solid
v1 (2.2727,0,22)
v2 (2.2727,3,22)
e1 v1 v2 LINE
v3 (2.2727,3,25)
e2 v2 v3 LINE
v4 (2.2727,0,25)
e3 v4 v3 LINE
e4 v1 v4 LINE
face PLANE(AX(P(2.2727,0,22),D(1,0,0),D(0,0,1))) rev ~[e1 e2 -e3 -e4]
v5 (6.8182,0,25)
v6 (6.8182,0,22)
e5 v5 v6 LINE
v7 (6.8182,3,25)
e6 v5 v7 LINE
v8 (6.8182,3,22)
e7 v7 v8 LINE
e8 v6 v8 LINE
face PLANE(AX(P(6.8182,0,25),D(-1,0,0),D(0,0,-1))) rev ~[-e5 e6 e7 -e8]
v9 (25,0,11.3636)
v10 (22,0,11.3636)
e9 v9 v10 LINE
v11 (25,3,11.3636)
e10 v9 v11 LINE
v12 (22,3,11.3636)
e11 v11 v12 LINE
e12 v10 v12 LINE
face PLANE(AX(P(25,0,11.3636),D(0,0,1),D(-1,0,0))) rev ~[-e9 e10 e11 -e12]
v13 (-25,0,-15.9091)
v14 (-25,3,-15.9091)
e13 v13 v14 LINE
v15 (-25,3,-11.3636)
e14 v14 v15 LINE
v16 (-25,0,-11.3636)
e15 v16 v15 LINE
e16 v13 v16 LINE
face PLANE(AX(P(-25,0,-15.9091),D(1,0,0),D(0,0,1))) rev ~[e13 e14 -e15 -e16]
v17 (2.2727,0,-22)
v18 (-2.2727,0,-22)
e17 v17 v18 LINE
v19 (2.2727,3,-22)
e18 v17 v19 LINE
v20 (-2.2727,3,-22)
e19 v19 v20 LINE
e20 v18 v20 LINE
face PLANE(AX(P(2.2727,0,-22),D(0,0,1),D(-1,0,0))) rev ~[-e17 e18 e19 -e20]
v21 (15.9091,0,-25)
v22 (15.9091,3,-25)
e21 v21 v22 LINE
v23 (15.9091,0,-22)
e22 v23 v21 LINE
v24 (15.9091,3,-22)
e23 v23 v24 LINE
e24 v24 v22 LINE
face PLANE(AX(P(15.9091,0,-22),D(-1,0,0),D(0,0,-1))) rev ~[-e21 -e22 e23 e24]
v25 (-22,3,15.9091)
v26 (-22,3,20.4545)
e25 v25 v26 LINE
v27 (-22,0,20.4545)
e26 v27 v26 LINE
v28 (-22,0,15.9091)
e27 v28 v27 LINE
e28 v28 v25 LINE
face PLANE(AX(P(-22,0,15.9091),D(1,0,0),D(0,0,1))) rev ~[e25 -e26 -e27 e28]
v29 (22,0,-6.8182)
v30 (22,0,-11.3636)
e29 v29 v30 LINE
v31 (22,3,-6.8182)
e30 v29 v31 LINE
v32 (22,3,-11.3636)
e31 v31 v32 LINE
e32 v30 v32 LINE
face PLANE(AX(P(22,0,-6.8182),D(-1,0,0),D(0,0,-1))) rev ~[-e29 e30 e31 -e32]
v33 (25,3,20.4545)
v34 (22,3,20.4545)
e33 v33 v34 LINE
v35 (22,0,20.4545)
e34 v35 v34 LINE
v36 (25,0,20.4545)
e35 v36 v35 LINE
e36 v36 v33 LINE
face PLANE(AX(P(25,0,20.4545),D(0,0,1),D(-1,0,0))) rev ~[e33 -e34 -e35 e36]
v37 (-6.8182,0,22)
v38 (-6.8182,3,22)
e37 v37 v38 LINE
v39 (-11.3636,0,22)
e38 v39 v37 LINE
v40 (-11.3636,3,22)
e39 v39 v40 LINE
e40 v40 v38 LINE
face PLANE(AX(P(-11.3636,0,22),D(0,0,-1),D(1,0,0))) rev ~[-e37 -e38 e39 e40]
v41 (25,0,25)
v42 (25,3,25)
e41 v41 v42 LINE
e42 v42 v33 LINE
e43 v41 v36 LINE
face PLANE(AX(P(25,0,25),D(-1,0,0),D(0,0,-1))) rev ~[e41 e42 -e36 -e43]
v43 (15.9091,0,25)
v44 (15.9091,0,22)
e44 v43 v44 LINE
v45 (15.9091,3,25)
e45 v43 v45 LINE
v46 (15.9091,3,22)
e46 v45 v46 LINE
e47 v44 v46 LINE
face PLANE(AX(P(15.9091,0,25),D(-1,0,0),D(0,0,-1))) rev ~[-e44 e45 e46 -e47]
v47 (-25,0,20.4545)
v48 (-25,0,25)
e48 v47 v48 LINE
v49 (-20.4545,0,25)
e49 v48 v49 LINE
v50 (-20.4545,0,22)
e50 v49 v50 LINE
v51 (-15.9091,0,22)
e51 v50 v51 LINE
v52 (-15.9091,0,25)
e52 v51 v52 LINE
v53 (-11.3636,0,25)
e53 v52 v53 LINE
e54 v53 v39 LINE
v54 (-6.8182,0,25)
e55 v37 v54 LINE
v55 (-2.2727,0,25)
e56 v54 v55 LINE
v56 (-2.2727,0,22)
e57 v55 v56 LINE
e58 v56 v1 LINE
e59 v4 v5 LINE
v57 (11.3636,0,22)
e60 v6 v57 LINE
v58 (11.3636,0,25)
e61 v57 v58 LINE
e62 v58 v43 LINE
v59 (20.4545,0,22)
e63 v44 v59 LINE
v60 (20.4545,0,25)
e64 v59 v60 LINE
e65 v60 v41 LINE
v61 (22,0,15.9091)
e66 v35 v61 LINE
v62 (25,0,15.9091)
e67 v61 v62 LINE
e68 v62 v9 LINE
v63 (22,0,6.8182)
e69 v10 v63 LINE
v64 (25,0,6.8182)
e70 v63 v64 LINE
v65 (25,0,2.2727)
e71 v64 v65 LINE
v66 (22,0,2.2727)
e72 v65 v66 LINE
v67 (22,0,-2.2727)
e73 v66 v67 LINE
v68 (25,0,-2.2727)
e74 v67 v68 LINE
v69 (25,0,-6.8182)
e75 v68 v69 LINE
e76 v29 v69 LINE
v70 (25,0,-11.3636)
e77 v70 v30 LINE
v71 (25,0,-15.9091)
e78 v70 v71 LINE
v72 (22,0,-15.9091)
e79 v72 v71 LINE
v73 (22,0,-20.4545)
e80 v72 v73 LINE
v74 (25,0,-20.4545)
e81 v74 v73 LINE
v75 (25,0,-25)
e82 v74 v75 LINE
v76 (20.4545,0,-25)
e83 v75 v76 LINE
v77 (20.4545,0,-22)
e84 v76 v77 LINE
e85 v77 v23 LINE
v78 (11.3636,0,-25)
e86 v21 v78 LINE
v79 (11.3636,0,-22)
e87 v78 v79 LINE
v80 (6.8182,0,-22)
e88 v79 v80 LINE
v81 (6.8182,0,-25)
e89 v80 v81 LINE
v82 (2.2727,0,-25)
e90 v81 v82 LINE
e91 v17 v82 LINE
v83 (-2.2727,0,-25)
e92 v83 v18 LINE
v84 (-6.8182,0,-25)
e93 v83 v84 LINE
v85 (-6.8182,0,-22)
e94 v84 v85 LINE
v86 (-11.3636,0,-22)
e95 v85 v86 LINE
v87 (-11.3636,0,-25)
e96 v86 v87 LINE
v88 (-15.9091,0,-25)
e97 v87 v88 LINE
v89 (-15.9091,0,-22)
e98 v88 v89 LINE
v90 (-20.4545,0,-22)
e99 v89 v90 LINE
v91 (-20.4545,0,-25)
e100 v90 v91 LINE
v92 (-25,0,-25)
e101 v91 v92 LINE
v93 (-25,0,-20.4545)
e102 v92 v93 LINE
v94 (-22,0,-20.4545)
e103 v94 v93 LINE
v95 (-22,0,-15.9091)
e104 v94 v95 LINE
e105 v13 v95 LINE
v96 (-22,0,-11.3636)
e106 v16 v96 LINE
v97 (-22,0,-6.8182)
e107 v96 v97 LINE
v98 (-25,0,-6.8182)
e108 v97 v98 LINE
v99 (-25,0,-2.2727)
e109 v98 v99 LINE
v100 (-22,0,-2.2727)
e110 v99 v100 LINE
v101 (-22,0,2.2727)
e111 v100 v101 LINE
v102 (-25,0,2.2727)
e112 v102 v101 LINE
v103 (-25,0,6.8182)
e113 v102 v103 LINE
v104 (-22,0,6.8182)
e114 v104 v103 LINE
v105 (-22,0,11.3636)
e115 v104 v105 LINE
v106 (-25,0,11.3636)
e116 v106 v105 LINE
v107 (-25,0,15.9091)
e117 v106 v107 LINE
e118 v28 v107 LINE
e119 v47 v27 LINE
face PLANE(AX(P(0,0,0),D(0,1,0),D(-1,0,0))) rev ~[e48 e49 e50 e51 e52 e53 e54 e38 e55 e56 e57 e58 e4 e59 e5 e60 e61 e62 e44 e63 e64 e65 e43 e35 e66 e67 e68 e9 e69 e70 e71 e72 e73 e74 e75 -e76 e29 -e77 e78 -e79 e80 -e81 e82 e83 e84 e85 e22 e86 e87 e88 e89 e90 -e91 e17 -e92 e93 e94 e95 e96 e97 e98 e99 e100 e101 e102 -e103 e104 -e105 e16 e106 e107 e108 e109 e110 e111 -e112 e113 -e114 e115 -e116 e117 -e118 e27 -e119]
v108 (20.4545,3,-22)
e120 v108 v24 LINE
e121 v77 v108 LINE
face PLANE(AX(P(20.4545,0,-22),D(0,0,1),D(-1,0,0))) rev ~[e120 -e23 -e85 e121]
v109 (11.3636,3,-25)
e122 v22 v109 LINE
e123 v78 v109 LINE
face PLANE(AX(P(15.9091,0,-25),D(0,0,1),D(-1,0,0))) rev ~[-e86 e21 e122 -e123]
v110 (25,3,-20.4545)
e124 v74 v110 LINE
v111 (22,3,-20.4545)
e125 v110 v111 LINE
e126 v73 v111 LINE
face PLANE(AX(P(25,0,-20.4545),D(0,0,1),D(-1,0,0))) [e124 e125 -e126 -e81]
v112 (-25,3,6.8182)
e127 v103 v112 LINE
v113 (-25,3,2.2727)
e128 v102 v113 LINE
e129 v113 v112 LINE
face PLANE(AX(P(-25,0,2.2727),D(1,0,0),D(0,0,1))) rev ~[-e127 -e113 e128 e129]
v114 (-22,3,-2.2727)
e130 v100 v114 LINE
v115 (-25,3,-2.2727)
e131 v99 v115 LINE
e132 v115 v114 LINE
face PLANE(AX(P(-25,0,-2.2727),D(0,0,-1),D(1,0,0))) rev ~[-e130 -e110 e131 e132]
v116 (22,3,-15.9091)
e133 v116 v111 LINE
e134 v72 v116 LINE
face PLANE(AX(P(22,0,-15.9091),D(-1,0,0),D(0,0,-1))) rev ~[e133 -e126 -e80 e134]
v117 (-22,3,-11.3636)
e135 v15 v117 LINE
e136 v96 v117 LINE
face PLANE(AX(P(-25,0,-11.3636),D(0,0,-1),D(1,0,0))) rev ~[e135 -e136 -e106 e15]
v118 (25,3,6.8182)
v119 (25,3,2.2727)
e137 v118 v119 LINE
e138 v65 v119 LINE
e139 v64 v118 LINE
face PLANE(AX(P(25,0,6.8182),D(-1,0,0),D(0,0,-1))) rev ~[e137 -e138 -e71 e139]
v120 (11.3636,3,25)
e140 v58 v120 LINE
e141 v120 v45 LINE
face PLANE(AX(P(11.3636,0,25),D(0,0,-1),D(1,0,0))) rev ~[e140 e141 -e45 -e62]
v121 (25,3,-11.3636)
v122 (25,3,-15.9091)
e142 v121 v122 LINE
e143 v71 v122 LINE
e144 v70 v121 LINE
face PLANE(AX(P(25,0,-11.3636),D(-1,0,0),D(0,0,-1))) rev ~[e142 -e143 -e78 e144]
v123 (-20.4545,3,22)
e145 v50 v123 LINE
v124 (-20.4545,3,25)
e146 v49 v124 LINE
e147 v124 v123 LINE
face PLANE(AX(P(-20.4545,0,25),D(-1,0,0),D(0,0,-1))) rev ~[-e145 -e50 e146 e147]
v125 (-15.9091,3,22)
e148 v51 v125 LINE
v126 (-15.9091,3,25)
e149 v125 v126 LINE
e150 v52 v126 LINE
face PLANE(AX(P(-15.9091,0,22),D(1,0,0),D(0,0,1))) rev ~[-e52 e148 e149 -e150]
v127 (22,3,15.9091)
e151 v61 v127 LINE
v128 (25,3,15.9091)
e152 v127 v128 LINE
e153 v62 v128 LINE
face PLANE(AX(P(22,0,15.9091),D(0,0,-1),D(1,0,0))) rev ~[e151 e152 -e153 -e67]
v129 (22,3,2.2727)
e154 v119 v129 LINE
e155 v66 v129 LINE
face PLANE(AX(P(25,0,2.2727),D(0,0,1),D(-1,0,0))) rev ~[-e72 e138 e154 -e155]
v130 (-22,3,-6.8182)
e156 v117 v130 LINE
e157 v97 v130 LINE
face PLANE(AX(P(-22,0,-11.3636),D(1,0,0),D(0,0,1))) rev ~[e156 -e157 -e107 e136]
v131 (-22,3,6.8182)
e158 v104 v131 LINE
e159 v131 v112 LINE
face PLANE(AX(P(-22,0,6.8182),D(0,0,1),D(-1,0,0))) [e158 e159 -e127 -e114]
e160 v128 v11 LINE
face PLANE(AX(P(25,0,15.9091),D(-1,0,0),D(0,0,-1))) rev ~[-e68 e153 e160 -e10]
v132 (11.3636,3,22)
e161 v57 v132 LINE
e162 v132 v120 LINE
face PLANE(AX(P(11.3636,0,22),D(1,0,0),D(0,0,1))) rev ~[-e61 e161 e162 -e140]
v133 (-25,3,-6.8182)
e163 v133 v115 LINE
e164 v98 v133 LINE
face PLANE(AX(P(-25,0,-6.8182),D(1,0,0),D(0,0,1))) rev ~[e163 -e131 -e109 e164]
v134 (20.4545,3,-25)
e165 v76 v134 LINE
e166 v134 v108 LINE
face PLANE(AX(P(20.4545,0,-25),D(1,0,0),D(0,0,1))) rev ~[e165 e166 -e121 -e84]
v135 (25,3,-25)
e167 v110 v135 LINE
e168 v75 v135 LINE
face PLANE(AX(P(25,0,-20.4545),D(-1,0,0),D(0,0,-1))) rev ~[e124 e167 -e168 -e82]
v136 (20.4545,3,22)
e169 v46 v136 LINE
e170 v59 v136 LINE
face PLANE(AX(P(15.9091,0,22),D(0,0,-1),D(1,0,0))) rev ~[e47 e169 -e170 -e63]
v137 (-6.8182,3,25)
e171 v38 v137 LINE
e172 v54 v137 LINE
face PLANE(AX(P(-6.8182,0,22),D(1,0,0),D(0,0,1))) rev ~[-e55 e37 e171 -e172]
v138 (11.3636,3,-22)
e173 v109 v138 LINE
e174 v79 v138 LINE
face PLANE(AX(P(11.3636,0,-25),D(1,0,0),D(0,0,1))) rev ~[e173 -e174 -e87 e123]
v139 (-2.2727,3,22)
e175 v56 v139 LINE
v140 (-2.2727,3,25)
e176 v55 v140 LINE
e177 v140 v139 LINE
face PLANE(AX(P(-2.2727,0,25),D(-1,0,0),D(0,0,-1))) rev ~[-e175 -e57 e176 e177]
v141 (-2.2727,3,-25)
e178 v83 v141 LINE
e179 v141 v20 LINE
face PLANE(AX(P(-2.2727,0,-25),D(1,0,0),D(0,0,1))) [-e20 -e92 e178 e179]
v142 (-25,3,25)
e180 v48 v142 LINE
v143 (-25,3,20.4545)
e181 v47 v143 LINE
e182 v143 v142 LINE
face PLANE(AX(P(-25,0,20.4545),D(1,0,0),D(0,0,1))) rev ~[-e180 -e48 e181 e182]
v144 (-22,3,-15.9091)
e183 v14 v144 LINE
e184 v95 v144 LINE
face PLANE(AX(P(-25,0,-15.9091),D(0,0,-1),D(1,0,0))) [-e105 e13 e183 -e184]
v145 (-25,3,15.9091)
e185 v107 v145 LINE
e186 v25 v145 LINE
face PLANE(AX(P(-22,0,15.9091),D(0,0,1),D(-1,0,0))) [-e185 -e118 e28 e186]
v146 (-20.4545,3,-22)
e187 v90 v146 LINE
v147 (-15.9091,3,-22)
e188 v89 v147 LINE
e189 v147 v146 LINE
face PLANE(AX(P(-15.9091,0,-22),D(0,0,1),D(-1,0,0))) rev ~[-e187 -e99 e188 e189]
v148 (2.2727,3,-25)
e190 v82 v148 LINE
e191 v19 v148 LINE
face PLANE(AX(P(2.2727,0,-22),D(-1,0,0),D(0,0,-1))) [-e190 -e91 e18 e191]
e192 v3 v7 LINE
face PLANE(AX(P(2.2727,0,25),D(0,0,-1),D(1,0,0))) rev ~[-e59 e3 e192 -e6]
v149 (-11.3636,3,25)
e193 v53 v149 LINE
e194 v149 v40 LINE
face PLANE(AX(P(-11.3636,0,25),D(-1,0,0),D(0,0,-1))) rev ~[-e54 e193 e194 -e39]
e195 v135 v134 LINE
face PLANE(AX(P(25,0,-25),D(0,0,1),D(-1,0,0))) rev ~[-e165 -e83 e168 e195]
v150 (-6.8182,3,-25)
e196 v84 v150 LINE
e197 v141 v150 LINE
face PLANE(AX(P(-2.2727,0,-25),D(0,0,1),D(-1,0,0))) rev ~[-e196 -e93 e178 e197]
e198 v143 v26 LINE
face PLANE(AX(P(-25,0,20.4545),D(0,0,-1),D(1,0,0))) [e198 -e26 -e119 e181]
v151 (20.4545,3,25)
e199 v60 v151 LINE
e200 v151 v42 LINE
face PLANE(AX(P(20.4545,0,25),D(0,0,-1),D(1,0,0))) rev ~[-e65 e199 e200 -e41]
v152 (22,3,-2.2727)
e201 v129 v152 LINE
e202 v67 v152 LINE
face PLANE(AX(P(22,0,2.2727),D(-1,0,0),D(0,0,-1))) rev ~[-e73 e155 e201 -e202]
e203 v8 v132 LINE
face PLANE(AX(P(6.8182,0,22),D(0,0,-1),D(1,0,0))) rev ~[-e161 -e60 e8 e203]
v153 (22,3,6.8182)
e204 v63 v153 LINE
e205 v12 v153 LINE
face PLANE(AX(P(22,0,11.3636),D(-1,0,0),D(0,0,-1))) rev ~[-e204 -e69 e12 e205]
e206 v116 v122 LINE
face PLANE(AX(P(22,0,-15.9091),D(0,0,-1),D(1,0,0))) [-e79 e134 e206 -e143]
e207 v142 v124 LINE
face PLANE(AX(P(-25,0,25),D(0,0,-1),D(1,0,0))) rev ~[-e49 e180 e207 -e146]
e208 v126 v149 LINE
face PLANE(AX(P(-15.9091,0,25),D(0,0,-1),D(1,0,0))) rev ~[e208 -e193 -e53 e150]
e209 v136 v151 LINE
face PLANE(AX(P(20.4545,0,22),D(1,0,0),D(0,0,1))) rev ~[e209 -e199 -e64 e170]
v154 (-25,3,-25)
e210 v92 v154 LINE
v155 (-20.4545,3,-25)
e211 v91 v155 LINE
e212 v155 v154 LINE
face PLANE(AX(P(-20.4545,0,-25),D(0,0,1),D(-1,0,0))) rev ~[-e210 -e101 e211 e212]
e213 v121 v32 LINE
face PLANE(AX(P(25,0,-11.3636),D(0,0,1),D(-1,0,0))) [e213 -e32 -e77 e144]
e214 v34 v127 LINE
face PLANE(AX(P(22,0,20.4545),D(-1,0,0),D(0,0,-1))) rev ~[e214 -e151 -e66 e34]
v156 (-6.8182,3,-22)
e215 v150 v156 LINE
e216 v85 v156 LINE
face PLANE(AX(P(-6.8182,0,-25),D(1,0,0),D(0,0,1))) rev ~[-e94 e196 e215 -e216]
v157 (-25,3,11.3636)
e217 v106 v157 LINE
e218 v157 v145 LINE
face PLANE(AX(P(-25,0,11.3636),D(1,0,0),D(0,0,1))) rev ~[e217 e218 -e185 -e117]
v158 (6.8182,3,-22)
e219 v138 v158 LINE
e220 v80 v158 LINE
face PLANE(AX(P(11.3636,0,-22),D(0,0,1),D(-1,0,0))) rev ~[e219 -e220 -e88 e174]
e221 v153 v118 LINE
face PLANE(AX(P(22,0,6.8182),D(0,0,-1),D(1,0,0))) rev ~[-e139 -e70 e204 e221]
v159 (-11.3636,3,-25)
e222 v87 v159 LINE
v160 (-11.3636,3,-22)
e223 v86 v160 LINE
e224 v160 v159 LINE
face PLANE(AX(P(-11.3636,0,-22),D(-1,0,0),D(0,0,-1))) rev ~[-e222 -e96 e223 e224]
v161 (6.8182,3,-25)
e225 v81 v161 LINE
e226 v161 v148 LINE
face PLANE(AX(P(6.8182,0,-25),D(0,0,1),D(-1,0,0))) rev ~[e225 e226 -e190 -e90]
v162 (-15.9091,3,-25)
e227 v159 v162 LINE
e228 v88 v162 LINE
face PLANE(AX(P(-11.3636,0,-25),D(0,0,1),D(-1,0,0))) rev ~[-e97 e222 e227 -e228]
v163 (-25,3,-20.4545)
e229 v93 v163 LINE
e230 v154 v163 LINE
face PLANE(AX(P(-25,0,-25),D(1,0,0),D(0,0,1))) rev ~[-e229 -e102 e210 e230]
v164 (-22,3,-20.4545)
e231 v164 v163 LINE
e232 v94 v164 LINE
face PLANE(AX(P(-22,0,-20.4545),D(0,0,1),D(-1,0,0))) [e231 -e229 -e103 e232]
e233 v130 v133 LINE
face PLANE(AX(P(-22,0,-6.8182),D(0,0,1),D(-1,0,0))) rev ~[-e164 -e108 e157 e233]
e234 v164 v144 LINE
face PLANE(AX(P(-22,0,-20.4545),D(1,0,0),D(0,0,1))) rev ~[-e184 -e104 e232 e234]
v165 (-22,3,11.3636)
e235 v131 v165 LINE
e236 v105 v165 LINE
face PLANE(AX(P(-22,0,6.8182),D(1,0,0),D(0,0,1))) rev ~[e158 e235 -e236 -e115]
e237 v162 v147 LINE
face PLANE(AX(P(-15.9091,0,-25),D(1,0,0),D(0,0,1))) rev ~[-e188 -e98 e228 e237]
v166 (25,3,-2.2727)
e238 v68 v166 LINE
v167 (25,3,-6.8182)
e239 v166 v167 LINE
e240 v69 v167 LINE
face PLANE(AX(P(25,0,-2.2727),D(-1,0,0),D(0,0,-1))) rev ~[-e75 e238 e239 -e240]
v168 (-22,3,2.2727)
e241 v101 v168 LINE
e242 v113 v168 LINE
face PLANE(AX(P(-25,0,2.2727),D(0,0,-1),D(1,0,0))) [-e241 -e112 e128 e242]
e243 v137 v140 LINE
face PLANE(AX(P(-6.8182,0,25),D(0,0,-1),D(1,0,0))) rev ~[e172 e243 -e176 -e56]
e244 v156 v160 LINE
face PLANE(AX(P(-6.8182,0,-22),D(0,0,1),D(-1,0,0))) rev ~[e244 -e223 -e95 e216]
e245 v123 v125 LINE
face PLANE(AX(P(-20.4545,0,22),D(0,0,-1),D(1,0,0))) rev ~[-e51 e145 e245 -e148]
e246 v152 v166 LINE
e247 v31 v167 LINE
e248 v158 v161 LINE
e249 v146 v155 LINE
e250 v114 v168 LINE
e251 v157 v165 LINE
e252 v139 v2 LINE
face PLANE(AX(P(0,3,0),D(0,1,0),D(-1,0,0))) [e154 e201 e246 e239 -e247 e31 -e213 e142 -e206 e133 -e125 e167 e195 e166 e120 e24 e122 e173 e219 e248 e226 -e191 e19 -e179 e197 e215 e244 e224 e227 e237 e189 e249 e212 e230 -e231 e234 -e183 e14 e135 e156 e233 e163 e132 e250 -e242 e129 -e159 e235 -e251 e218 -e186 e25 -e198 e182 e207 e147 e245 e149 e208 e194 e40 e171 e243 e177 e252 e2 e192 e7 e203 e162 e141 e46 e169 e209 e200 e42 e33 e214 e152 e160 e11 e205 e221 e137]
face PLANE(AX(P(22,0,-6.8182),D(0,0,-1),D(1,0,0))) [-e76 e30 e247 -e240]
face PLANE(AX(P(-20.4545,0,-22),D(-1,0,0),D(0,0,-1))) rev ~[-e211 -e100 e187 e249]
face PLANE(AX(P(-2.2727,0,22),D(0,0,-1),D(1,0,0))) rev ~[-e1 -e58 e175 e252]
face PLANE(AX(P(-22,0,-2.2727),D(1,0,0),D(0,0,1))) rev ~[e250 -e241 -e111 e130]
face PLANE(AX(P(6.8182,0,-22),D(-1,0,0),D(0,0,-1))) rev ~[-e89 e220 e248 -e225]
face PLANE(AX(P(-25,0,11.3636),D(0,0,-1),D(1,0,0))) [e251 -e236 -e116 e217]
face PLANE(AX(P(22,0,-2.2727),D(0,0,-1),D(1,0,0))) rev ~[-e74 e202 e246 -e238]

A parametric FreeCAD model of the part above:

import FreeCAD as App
import Part
import Sketcher
from FreeCAD import Vector

doc = App.newDocument("Part")
params = doc.addObject("Spreadsheet::Sheet", "Params")
for row, (alias, value) in enumerate([
    ("sketch1_width", "3 mm"),
    ("pad1_length", "3 mm"),
], start=1):
    params.set(f"A{row}", alias)
    params.set(f"B{row}", "=" + value)
    params.setAlias(f"B{row}", alias)

body = doc.addObject("PartDesign::Body", "Body")

# Sketch on XZ plane
sketch1 = body.newObject("Sketcher::SketchObject", "Sketch")
sketch1.AttachmentSupport = (doc.getObject("XZ_Plane"), [""])
sketch1.MapMode = "FlatFace"
sketch1.addGeometry(Part.LineSegment(Vector(-25, 25, 0), Vector(-20.5, 25, 0)), False)
sketch1.addGeometry(Part.LineSegment(Vector(-20.5, 25, 0), Vector(-20.5, 22, 0)), False)
sketch1.addGeometry(Part.LineSegment(Vector(-20.5, 22, 0), Vector(-15.9, 22, 0)), False)
sketch1.addGeometry(Part.LineSegment(Vector(-15.9, 22, 0), Vector(-15.9, 25, 0)), False)
sketch1.addGeometry(Part.LineSegment(Vector(-15.9, 25, 0), Vector(-11.4, 25, 0)), False)
sketch1.addGeometry(Part.LineSegment(Vector(-11.4, 25, 0), Vector(-11.4, 22, 0)), False)
sketch1.addGeometry(Part.LineSegment(Vector(-11.4, 22, 0), Vector(-6.8, 22, 0)), False)
sketch1.addGeometry(Part.LineSegment(Vector(-6.8, 22, 0), Vector(-6.8, 25, 0)), False)
sketch1.addGeometry(Part.LineSegment(Vector(-6.8, 25, 0), Vector(-2.3, 25, 0)), False)
sketch1.addGeometry(Part.LineSegment(Vector(-2.3, 25, 0), Vector(-2.3, 22, 0)), False)
sketch1.addGeometry(Part.LineSegment(Vector(-2.3, 22, 0), Vector(2.3, 22, 0)), False)
sketch1.addGeometry(Part.LineSegment(Vector(2.3, 22, 0), Vector(2.3, 25, 0)), False)
sketch1.addGeometry(Part.LineSegment(Vector(2.3, 25, 0), Vector(6.8, 25, 0)), False)
sketch1.addGeometry(Part.LineSegment(Vector(6.8, 25, 0), Vector(6.8, 22, 0)), False)
sketch1.addGeometry(Part.LineSegment(Vector(6.8, 22, 0), Vector(11.4, 22, 0)), False)
sketch1.addGeometry(Part.LineSegment(Vector(11.4, 22, 0), Vector(11.4, 25, 0)), False)
sketch1.addGeometry(Part.LineSegment(Vector(11.4, 25, 0), Vector(15.9, 25, 0)), False)
sketch1.addGeometry(Part.LineSegment(Vector(15.9, 25, 0), Vector(15.9, 22, 0)), False)
sketch1.addGeometry(Part.LineSegment(Vector(15.9, 22, 0), Vector(20.5, 22, 0)), False)
sketch1.addGeometry(Part.LineSegment(Vector(20.5, 22, 0), Vector(20.5, 25, 0)), False)
sketch1.addGeometry(Part.LineSegment(Vector(20.5, 25, 0), Vector(25, 25, 0)), False)
sketch1.addGeometry(Part.LineSegment(Vector(25, 25, 0), Vector(25, 20.5, 0)), False)
sketch1.addGeometry(Part.LineSegment(Vector(25, 20.5, 0), Vector(22, 20.5, 0)), False)
sketch1.addGeometry(Part.LineSegment(Vector(22, 20.5, 0), Vector(22, 15.9, 0)), False)
sketch1.addGeometry(Part.LineSegment(Vector(22, 15.9, 0), Vector(25, 15.9, 0)), False)
sketch1.addGeometry(Part.LineSegment(Vector(25, 15.9, 0), Vector(25, 11.4, 0)), False)
sketch1.addGeometry(Part.LineSegment(Vector(25, 11.4, 0), Vector(22, 11.4, 0)), False)
sketch1.addGeometry(Part.LineSegment(Vector(22, 11.4, 0), Vector(22, 6.8, 0)), False)
sketch1.addGeometry(Part.LineSegment(Vector(22, 6.8, 0), Vector(25, 6.8, 0)), False)
sketch1.addGeometry(Part.LineSegment(Vector(25, 6.8, 0), Vector(25, 2.3, 0)), False)
sketch1.addGeometry(Part.LineSegment(Vector(25, 2.3, 0), Vector(22, 2.3, 0)), False)
sketch1.addGeometry(Part.LineSegment(Vector(22, 2.3, 0), Vector(22, -2.3, 0)), False)
sketch1.addGeometry(Part.LineSegment(Vector(22, -2.3, 0), Vector(25, -2.3, 0)), False)
sketch1.addGeometry(Part.LineSegment(Vector(25, -2.3, 0), Vector(25, -6.8, 0)), False)
sketch1.addGeometry(Part.LineSegment(Vector(25, -6.8, 0), Vector(22, -6.8, 0)), False)
sketch1.addGeometry(Part.LineSegment(Vector(22, -6.8, 0), Vector(22, -11.4, 0)), False)
sketch1.addGeometry(Part.LineSegment(Vector(22, -11.4, 0), Vector(25, -11.4, 0)), False)
sketch1.addGeometry(Part.LineSegment(Vector(25, -11.4, 0), Vector(25, -15.9, 0)), False)
sketch1.addGeometry(Part.LineSegment(Vector(25, -15.9, 0), Vector(22, -15.9, 0)), False)
sketch1.addGeometry(Part.LineSegment(Vector(22, -15.9, 0), Vector(22, -20.5, 0)), False)
sketch1.addGeometry(Part.LineSegment(Vector(22, -20.5, 0), Vector(25, -20.5, 0)), False)
sketch1.addGeometry(Part.LineSegment(Vector(25, -20.5, 0), Vector(25, -25, 0)), False)
sketch1.addGeometry(Part.LineSegment(Vector(25, -25, 0), Vector(20.5, -25, 0)), False)
sketch1.addGeometry(Part.LineSegment(Vector(20.5, -25, 0), Vector(20.5, -22, 0)), False)
sketch1.addGeometry(Part.LineSegment(Vector(20.5, -22, 0), Vector(15.9, -22, 0)), False)
sketch1.addGeometry(Part.LineSegment(Vector(15.9, -22, 0), Vector(15.9, -25, 0)), False)
sketch1.addGeometry(Part.LineSegment(Vector(15.9, -25, 0), Vector(11.4, -25, 0)), False)
sketch1.addGeometry(Part.LineSegment(Vector(11.4, -25, 0), Vector(11.4, -22, 0)), False)
sketch1.addGeometry(Part.LineSegment(Vector(11.4, -22, 0), Vector(6.8, -22, 0)), False)
sketch1.addGeometry(Part.LineSegment(Vector(6.8, -22, 0), Vector(6.8, -25, 0)), False)
sketch1.addGeometry(Part.LineSegment(Vector(6.8, -25, 0), Vector(2.3, -25, 0)), False)
sketch1.addGeometry(Part.LineSegment(Vector(2.3, -25, 0), Vector(2.3, -22, 0)), False)
sketch1.addGeometry(Part.LineSegment(Vector(2.3, -22, 0), Vector(-2.3, -22, 0)), False)
sketch1.addGeometry(Part.LineSegment(Vector(-2.3, -22, 0), Vector(-2.3, -25, 0)), False)
sketch1.addGeometry(Part.LineSegment(Vector(-2.3, -25, 0), Vector(-6.8, -25, 0)), False)
sketch1.addGeometry(Part.LineSegment(Vector(-6.8, -25, 0), Vector(-6.8, -22, 0)), False)
sketch1.addGeometry(Part.LineSegment(Vector(-6.8, -22, 0), Vector(-11.4, -22, 0)), False)
sketch1.addGeometry(Part.LineSegment(Vector(-11.4, -22, 0), Vector(-11.4, -25, 0)), False)
sketch1.addGeometry(Part.LineSegment(Vector(-11.4, -25, 0), Vector(-15.9, -25, 0)), False)
sketch1.addGeometry(Part.LineSegment(Vector(-15.9, -25, 0), Vector(-15.9, -22, 0)), False)
sketch1.addGeometry(Part.LineSegment(Vector(-15.9, -22, 0), Vector(-20.5, -22, 0)), False)
sketch1.addGeometry(Part.LineSegment(Vector(-20.5, -22, 0), Vector(-20.5, -25, 0)), False)
sketch1.addGeometry(Part.LineSegment(Vector(-20.5, -25, 0), Vector(-25, -25, 0)), False)
sketch1.addGeometry(Part.LineSegment(Vector(-25, -25, 0), Vector(-25, -20.5, 0)), False)
sketch1.addGeometry(Part.LineSegment(Vector(-25, -20.5, 0), Vector(-22, -20.5, 0)), False)
sketch1.addGeometry(Part.LineSegment(Vector(-22, -20.5, 0), Vector(-22, -15.9, 0)), False)
sketch1.addGeometry(Part.LineSegment(Vector(-22, -15.9, 0), Vector(-25, -15.9, 0)), False)
sketch1.addGeometry(Part.LineSegment(Vector(-25, -15.9, 0), Vector(-25, -11.4, 0)), False)
sketch1.addGeometry(Part.LineSegment(Vector(-25, -11.4, 0), Vector(-22, -11.4, 0)), False)
sketch1.addGeometry(Part.LineSegment(Vector(-22, -11.4, 0), Vector(-22, -6.8, 0)), False)
sketch1.addGeometry(Part.LineSegment(Vector(-22, -6.8, 0), Vector(-25, -6.8, 0)), False)
sketch1.addGeometry(Part.LineSegment(Vector(-25, -6.8, 0), Vector(-25, -2.3, 0)), False)
sketch1.addGeometry(Part.LineSegment(Vector(-25, -2.3, 0), Vector(-22, -2.3, 0)), False)
sketch1.addGeometry(Part.LineSegment(Vector(-22, -2.3, 0), Vector(-22, 2.3, 0)), False)
sketch1.addGeometry(Part.LineSegment(Vector(-22, 2.3, 0), Vector(-25, 2.3, 0)), False)
sketch1.addGeometry(Part.LineSegment(Vector(-25, 2.3, 0), Vector(-25, 6.8, 0)), False)
sketch1.addGeometry(Part.LineSegment(Vector(-25, 6.8, 0), Vector(-22, 6.8, 0)), False)
sketch1.addGeometry(Part.LineSegment(Vector(-22, 6.8, 0), Vector(-22, 11.4, 0)), False)
sketch1.addGeometry(Part.LineSegment(Vector(-22, 11.4, 0), Vector(-25, 11.4, 0)), False)
sketch1.addGeometry(Part.LineSegment(Vector(-25, 11.4, 0), Vector(-25, 15.9, 0)), False)
sketch1.addGeometry(Part.LineSegment(Vector(-25, 15.9, 0), Vector(-22, 15.9, 0)), False)
sketch1.addGeometry(Part.LineSegment(Vector(-22, 15.9, 0), Vector(-22, 20.5, 0)), False)
sketch1.addGeometry(Part.LineSegment(Vector(-22, 20.5, 0), Vector(-25, 20.5, 0)), False)
sketch1.addGeometry(Part.LineSegment(Vector(-25, 20.5, 0), Vector(-25, 25, 0)), False)
sketch1.addConstraint(Sketcher.Constraint("Coincident", 0, 2, 1, 1))
sketch1.addConstraint(Sketcher.Constraint("Coincident", 1, 2, 2, 1))
sketch1.addConstraint(Sketcher.Constraint("Coincident", 2, 2, 3, 1))
sketch1.addConstraint(Sketcher.Constraint("Coincident", 3, 2, 4, 1))
sketch1.addConstraint(Sketcher.Constraint("Coincident", 4, 2, 5, 1))
sketch1.addConstraint(Sketcher.Constraint("Coincident", 5, 2, 6, 1))
sketch1.addConstraint(Sketcher.Constraint("Coincident", 6, 2, 7, 1))
sketch1.addConstraint(Sketcher.Constraint("Coincident", 7, 2, 8, 1))
sketch1.addConstraint(Sketcher.Constraint("Coincident", 8, 2, 9, 1))
sketch1.addConstraint(Sketcher.Constraint("Coincident", 9, 2, 10, 1))
sketch1.addConstraint(Sketcher.Constraint("Coincident", 10, 2, 11, 1))
sketch1.addConstraint(Sketcher.Constraint("Coincident", 11, 2, 12, 1))
sketch1.addConstraint(Sketcher.Constraint("Coincident", 12, 2, 13, 1))
sketch1.addConstraint(Sketcher.Constraint("Coincident", 13, 2, 14, 1))
sketch1.addConstraint(Sketcher.Constraint("Coincident", 14, 2, 15, 1))
sketch1.addConstraint(Sketcher.Constraint("Coincident", 15, 2, 16, 1))
sketch1.addConstraint(Sketcher.Constraint("Coincident", 16, 2, 17, 1))
sketch1.addConstraint(Sketcher.Constraint("Coincident", 17, 2, 18, 1))
sketch1.addConstraint(Sketcher.Constraint("Coincident", 18, 2, 19, 1))
sketch1.addConstraint(Sketcher.Constraint("Coincident", 19, 2, 20, 1))
sketch1.addConstraint(Sketcher.Constraint("Coincident", 20, 2, 21, 1))
sketch1.addConstraint(Sketcher.Constraint("Coincident", 21, 2, 22, 1))
sketch1.addConstraint(Sketcher.Constraint("Coincident", 22, 2, 23, 1))
sketch1.addConstraint(Sketcher.Constraint("Coincident", 23, 2, 24, 1))
sketch1.addConstraint(Sketcher.Constraint("Coincident", 24, 2, 25, 1))
sketch1.addConstraint(Sketcher.Constraint("Coincident", 25, 2, 26, 1))
sketch1.addConstraint(Sketcher.Constraint("Coincident", 26, 2, 27, 1))
sketch1.addConstraint(Sketcher.Constraint("Coincident", 27, 2, 28, 1))
sketch1.addConstraint(Sketcher.Constraint("Coincident", 28, 2, 29, 1))
sketch1.addConstraint(Sketcher.Constraint("Coincident", 29, 2, 30, 1))
sketch1.addConstraint(Sketcher.Constraint("Coincident", 30, 2, 31, 1))
sketch1.addConstraint(Sketcher.Constraint("Coincident", 31, 2, 32, 1))
sketch1.addConstraint(Sketcher.Constraint("Coincident", 32, 2, 33, 1))
sketch1.addConstraint(Sketcher.Constraint("Coincident", 33, 2, 34, 1))
sketch1.addConstraint(Sketcher.Constraint("Coincident", 34, 2, 35, 1))
sketch1.addConstraint(Sketcher.Constraint("Coincident", 35, 2, 36, 1))
sketch1.addConstraint(Sketcher.Constraint("Coincident", 36, 2, 37, 1))
sketch1.addConstraint(Sketcher.Constraint("Coincident", 37, 2, 38, 1))
sketch1.addConstraint(Sketcher.Constraint("Coincident", 38, 2, 39, 1))
sketch1.addConstraint(Sketcher.Constraint("Coincident", 39, 2, 40, 1))
sketch1.addConstraint(Sketcher.Constraint("Coincident", 40, 2, 41, 1))
sketch1.addConstraint(Sketcher.Constraint("Coincident", 41, 2, 42, 1))
sketch1.addConstraint(Sketcher.Constraint("Coincident", 42, 2, 43, 1))
sketch1.addConstraint(Sketcher.Constraint("Coincident", 43, 2, 44, 1))
sketch1.addConstraint(Sketcher.Constraint("Coincident", 44, 2, 45, 1))
sketch1.addConstraint(Sketcher.Constraint("Coincident", 45, 2, 46, 1))
sketch1.addConstraint(Sketcher.Constraint("Coincident", 46, 2, 47, 1))
sketch1.addConstraint(Sketcher.Constraint("Coincident", 47, 2, 48, 1))
sketch1.addConstraint(Sketcher.Constraint("Coincident", 48, 2, 49, 1))
sketch1.addConstraint(Sketcher.Constraint("Coincident", 49, 2, 50, 1))
sketch1.addConstraint(Sketcher.Constraint("Coincident", 50, 2, 51, 1))
sketch1.addConstraint(Sketcher.Constraint("Coincident", 51, 2, 52, 1))
sketch1.addConstraint(Sketcher.Constraint("Coincident", 52, 2, 53, 1))
sketch1.addConstraint(Sketcher.Constraint("Coincident", 53, 2, 54, 1))
sketch1.addConstraint(Sketcher.Constraint("Coincident", 54, 2, 55, 1))
sketch1.addConstraint(Sketcher.Constraint("Coincident", 55, 2, 56, 1))
sketch1.addConstraint(Sketcher.Constraint("Coincident", 56, 2, 57, 1))
sketch1.addConstraint(Sketcher.Constraint("Coincident", 57, 2, 58, 1))
sketch1.addConstraint(Sketcher.Constraint("Coincident", 58, 2, 59, 1))
sketch1.addConstraint(Sketcher.Constraint("Coincident", 59, 2, 60, 1))
sketch1.addConstraint(Sketcher.Constraint("Coincident", 60, 2, 61, 1))
sketch1.addConstraint(Sketcher.Constraint("Coincident", 61, 2, 62, 1))
sketch1.addConstraint(Sketcher.Constraint("Coincident", 62, 2, 63, 1))
sketch1.addConstraint(Sketcher.Constraint("Coincident", 63, 2, 64, 1))
sketch1.addConstraint(Sketcher.Constraint("Coincident", 64, 2, 65, 1))
sketch1.addConstraint(Sketcher.Constraint("Coincident", 65, 2, 66, 1))
sketch1.addConstraint(Sketcher.Constraint("Coincident", 66, 2, 67, 1))
sketch1.addConstraint(Sketcher.Constraint("Coincident", 67, 2, 68, 1))
sketch1.addConstraint(Sketcher.Constraint("Coincident", 68, 2, 69, 1))
sketch1.addConstraint(Sketcher.Constraint("Coincident", 69, 2, 70, 1))
sketch1.addConstraint(Sketcher.Constraint("Coincident", 70, 2, 71, 1))
sketch1.addConstraint(Sketcher.Constraint("Coincident", 71, 2, 72, 1))
sketch1.addConstraint(Sketcher.Constraint("Coincident", 72, 2, 73, 1))
sketch1.addConstraint(Sketcher.Constraint("Coincident", 73, 2, 74, 1))
sketch1.addConstraint(Sketcher.Constraint("Coincident", 74, 2, 75, 1))
sketch1.addConstraint(Sketcher.Constraint("Coincident", 75, 2, 76, 1))
sketch1.addConstraint(Sketcher.Constraint("Coincident", 76, 2, 77, 1))
sketch1.addConstraint(Sketcher.Constraint("Coincident", 77, 2, 78, 1))
sketch1.addConstraint(Sketcher.Constraint("Coincident", 78, 2, 79, 1))
sketch1.addConstraint(Sketcher.Constraint("Coincident", 79, 2, 80, 1))
sketch1.addConstraint(Sketcher.Constraint("Coincident", 80, 2, 81, 1))
sketch1.addConstraint(Sketcher.Constraint("Coincident", 81, 2, 82, 1))
sketch1.addConstraint(Sketcher.Constraint("Coincident", 82, 2, 83, 1))
sketch1.addConstraint(Sketcher.Constraint("Coincident", 83, 2, 0, 1))
sketch1.addConstraint(Sketcher.Constraint("Horizontal", 0))
sketch1.addConstraint(Sketcher.Constraint("Vertical", 1))
sketch1.addConstraint(Sketcher.Constraint("Horizontal", 2))
sketch1.addConstraint(Sketcher.Constraint("Vertical", 3))
sketch1.addConstraint(Sketcher.Constraint("Horizontal", 4))
sketch1.addConstraint(Sketcher.Constraint("Vertical", 5))
sketch1.addConstraint(Sketcher.Constraint("Horizontal", 6))
sketch1.addConstraint(Sketcher.Constraint("Vertical", 7))
sketch1.addConstraint(Sketcher.Constraint("Horizontal", 8))
sketch1.addConstraint(Sketcher.Constraint("Vertical", 9))
sketch1.addConstraint(Sketcher.Constraint("Horizontal", 10))
sketch1.addConstraint(Sketcher.Constraint("Vertical", 11))
sketch1.addConstraint(Sketcher.Constraint("Horizontal", 12))
sketch1.addConstraint(Sketcher.Constraint("Vertical", 13))
sketch1.addConstraint(Sketcher.Constraint("Horizontal", 14))
sketch1.addConstraint(Sketcher.Constraint("Vertical", 15))
sketch1.addConstraint(Sketcher.Constraint("Horizontal", 16))
sketch1.addConstraint(Sketcher.Constraint("Vertical", 17))
sketch1.addConstraint(Sketcher.Constraint("Horizontal", 18))
sketch1.addConstraint(Sketcher.Constraint("Vertical", 19))
sketch1.addConstraint(Sketcher.Constraint("Horizontal", 20))
sketch1.addConstraint(Sketcher.Constraint("Vertical", 21))
sketch1.addConstraint(Sketcher.Constraint("Horizontal", 22))
sketch1.addConstraint(Sketcher.Constraint("Vertical", 23))
sketch1.addConstraint(Sketcher.Constraint("Horizontal", 24))
sketch1.addConstraint(Sketcher.Constraint("Vertical", 25))
sketch1.addConstraint(Sketcher.Constraint("Horizontal", 26))
sketch1.addConstraint(Sketcher.Constraint("Vertical", 27))
sketch1.addConstraint(Sketcher.Constraint("Horizontal", 28))
sketch1.addConstraint(Sketcher.Constraint("Vertical", 29))
sketch1.addConstraint(Sketcher.Constraint("Horizontal", 30))
sketch1.addConstraint(Sketcher.Constraint("Vertical", 31))
sketch1.addConstraint(Sketcher.Constraint("Horizontal", 32))
sketch1.addConstraint(Sketcher.Constraint("Vertical", 33))
sketch1.addConstraint(Sketcher.Constraint("Horizontal", 34))
sketch1.addConstraint(Sketcher.Constraint("Vertical", 35))
sketch1.addConstraint(Sketcher.Constraint("Horizontal", 36))
sketch1.addConstraint(Sketcher.Constraint("Vertical", 37))
sketch1.addConstraint(Sketcher.Constraint("Horizontal", 38))
sketch1.addConstraint(Sketcher.Constraint("Vertical", 39))
sketch1.addConstraint(Sketcher.Constraint("Horizontal", 40))
sketch1.addConstraint(Sketcher.Constraint("Vertical", 41))
sketch1.addConstraint(Sketcher.Constraint("Horizontal", 42))
sketch1.addConstraint(Sketcher.Constraint("Vertical", 43))
sketch1.addConstraint(Sketcher.Constraint("Horizontal", 44))
sketch1.addConstraint(Sketcher.Constraint("Vertical", 45))
sketch1.addConstraint(Sketcher.Constraint("Horizontal", 46))
sketch1.addConstraint(Sketcher.Constraint("Vertical", 47))
sketch1.addConstraint(Sketcher.Constraint("Horizontal", 48))
sketch1.addConstraint(Sketcher.Constraint("Vertical", 49))
sketch1.addConstraint(Sketcher.Constraint("Horizontal", 50))
sketch1.addConstraint(Sketcher.Constraint("Vertical", 51))
sketch1.addConstraint(Sketcher.Constraint("Horizontal", 52))
sketch1.addConstraint(Sketcher.Constraint("Vertical", 53))
sketch1.addConstraint(Sketcher.Constraint("Horizontal", 54))
sketch1.addConstraint(Sketcher.Constraint("Vertical", 55))
sketch1.addConstraint(Sketcher.Constraint("Horizontal", 56))
sketch1.addConstraint(Sketcher.Constraint("Vertical", 57))
sketch1.addConstraint(Sketcher.Constraint("Horizontal", 58))
sketch1.addConstraint(Sketcher.Constraint("Vertical", 59))
sketch1.addConstraint(Sketcher.Constraint("Horizontal", 60))
sketch1.addConstraint(Sketcher.Constraint("Vertical", 61))
sketch1.addConstraint(Sketcher.Constraint("Horizontal", 62))
sketch1.addConstraint(Sketcher.Constraint("Vertical", 63))
sketch1.addConstraint(Sketcher.Constraint("Horizontal", 64))
sketch1.addConstraint(Sketcher.Constraint("Vertical", 65))
sketch1.addConstraint(Sketcher.Constraint("Horizontal", 66))
sketch1.addConstraint(Sketcher.Constraint("Vertical", 67))
sketch1.addConstraint(Sketcher.Constraint("Horizontal", 68))
sketch1.addConstraint(Sketcher.Constraint("Vertical", 69))
sketch1.addConstraint(Sketcher.Constraint("Horizontal", 70))
sketch1.addConstraint(Sketcher.Constraint("Vertical", 71))
sketch1.addConstraint(Sketcher.Constraint("Horizontal", 72))
sketch1.addConstraint(Sketcher.Constraint("Vertical", 73))
sketch1.addConstraint(Sketcher.Constraint("Horizontal", 74))
sketch1.addConstraint(Sketcher.Constraint("Vertical", 75))
sketch1.addConstraint(Sketcher.Constraint("Horizontal", 76))
sketch1.addConstraint(Sketcher.Constraint("Vertical", 77))
sketch1.addConstraint(Sketcher.Constraint("Horizontal", 78))
sketch1.addConstraint(Sketcher.Constraint("Vertical", 79))
sketch1.addConstraint(Sketcher.Constraint("Horizontal", 80))
sketch1.addConstraint(Sketcher.Constraint("Vertical", 81))
sketch1.addConstraint(Sketcher.Constraint("Horizontal", 82))
sketch1.addConstraint(Sketcher.Constraint("Vertical", 83))
sketch1.addConstraint(Sketcher.Constraint("Symmetric", 0, 2, 42, 2, -1, 1))
sketch1.addConstraint(Sketcher.Constraint("Symmetric", 2, 2, 44, 2, -1, 1))
sketch1.addConstraint(Sketcher.Constraint("Symmetric", 4, 2, 46, 2, -1, 1))
sketch1.addConstraint(Sketcher.Constraint("Symmetric", 6, 2, 48, 2, -1, 1))
sketch1.addConstraint(Sketcher.Constraint("Symmetric", 8, 2, 50, 2, -1, 1))
sketch1.addConstraint(Sketcher.Constraint("Symmetric", 10, 2, 52, 2, -1, 1))
sketch1.addConstraint(Sketcher.Constraint("Symmetric", 12, 2, 54, 2, -1, 1))
sketch1.addConstraint(Sketcher.Constraint("Symmetric", 14, 2, 56, 2, -1, 1))
sketch1.addConstraint(Sketcher.Constraint("Symmetric", 16, 2, 58, 2, -1, 1))
sketch1.addConstraint(Sketcher.Constraint("Symmetric", 18, 2, 60, 2, -1, 1))
sketch1.addConstraint(Sketcher.Constraint("Symmetric", 20, 2, 62, 2, -1, 1))
sketch1.addConstraint(Sketcher.Constraint("Symmetric", 22, 2, 64, 2, -1, 1))
sketch1.addConstraint(Sketcher.Constraint("Symmetric", 24, 2, 66, 2, -1, 1))
sketch1.addConstraint(Sketcher.Constraint("Symmetric", 26, 2, 68, 2, -1, 1))
sketch1.addConstraint(Sketcher.Constraint("Symmetric", 28, 2, 70, 2, -1, 1))
sketch1.addConstraint(Sketcher.Constraint("Symmetric", 30, 2, 72, 2, -1, 1))
sketch1.addConstraint(Sketcher.Constraint("Symmetric", 32, 2, 74, 2, -1, 1))
sketch1.addConstraint(Sketcher.Constraint("Symmetric", 34, 2, 76, 2, -1, 1))
sketch1.addConstraint(Sketcher.Constraint("Symmetric", 36, 2, 78, 2, -1, 1))
sketch1.addConstraint(Sketcher.Constraint("Symmetric", 38, 2, 80, 2, -1, 1))
sketch1.addConstraint(Sketcher.Constraint("Symmetric", 40, 2, 82, 2, -1, 1))
sketch1.addConstraint(Sketcher.Constraint("Symmetric", 8, 2, 11, 2, -2))
sketch1.addConstraint(Sketcher.Constraint("Symmetric", 6, 2, 13, 2, -2))
sketch1.addConstraint(Sketcher.Constraint("Symmetric", 4, 2, 15, 2, -2))
sketch1.addConstraint(Sketcher.Constraint("Symmetric", 2, 2, 17, 2, -2))
sketch1.addConstraint(Sketcher.Constraint("Symmetric", 0, 2, 19, 2, -2))
sketch1.addConstraint(Sketcher.Constraint("Symmetric", 40, 2, 63, 2, -2))
sketch1.addConstraint(Sketcher.Constraint("Symmetric", 38, 2, 65, 2, -2))
sketch1.addConstraint(Sketcher.Constraint("Symmetric", 36, 2, 67, 2, -2))
sketch1.addConstraint(Sketcher.Constraint("Symmetric", 34, 2, 69, 2, -2))
sketch1.addConstraint(Sketcher.Constraint("Symmetric", 32, 2, 71, 2, -2))
sketch1.addConstraint(Sketcher.Constraint("Horizontal", 0, 2, 3, 2))
sketch1.addConstraint(Sketcher.Constraint("Horizontal", 2, 2, 5, 2))
sketch1.addConstraint(Sketcher.Constraint("Horizontal", 4, 2, 7, 2))
sketch1.addConstraint(Sketcher.Constraint("Horizontal", 6, 2, 9, 2))
sketch1.addConstraint(Sketcher.Constraint("Vertical", 21, 2, 24, 2))
sketch1.addConstraint(Sketcher.Constraint("Vertical", 23, 2, 26, 2))
sketch1.addConstraint(Sketcher.Constraint("Vertical", 25, 2, 28, 2))
sketch1.addConstraint(Sketcher.Constraint("Vertical", 27, 2, 30, 2))
sketch1.addConstraint(Sketcher.Constraint("Equal", 0, 2))
sketch1.addConstraint(Sketcher.Constraint("Equal", 2, 4))
sketch1.addConstraint(Sketcher.Constraint("Equal", 4, 6))
sketch1.addConstraint(Sketcher.Constraint("Equal", 6, 8))
sketch1.addConstraint(Sketcher.Constraint("Equal", 8, 10))
sketch1.addConstraint(Sketcher.Constraint("Equal", 82, 1))
sketch1.addConstraint(Sketcher.Constraint("Equal", 62, 21))
sketch1.addConstraint(Sketcher.Constraint("Equal", 21, 23))
sketch1.addConstraint(Sketcher.Constraint("Equal", 23, 25))
sketch1.addConstraint(Sketcher.Constraint("Equal", 25, 27))
sketch1.addConstraint(Sketcher.Constraint("Equal", 27, 29))
sketch1.addConstraint(Sketcher.Constraint("Equal", 29, 31))
sketch1.addConstraint(Sketcher.Constraint("DistanceX", 22, 2, 22, 1, 3.0))
sketch1.addConstraint(Sketcher.Constraint("DistanceY", -1, 1, 0, 2, 25.0))
sketch1.setExpression("Constraints[219]", "Params.sketch1_width")
pad1 = body.newObject("PartDesign::Pad", "Pad")
pad1.Profile = sketch1
pad1.setExpression("Length", "Params.pad1_length")
pad1.Reversed = True

doc.recompute()
